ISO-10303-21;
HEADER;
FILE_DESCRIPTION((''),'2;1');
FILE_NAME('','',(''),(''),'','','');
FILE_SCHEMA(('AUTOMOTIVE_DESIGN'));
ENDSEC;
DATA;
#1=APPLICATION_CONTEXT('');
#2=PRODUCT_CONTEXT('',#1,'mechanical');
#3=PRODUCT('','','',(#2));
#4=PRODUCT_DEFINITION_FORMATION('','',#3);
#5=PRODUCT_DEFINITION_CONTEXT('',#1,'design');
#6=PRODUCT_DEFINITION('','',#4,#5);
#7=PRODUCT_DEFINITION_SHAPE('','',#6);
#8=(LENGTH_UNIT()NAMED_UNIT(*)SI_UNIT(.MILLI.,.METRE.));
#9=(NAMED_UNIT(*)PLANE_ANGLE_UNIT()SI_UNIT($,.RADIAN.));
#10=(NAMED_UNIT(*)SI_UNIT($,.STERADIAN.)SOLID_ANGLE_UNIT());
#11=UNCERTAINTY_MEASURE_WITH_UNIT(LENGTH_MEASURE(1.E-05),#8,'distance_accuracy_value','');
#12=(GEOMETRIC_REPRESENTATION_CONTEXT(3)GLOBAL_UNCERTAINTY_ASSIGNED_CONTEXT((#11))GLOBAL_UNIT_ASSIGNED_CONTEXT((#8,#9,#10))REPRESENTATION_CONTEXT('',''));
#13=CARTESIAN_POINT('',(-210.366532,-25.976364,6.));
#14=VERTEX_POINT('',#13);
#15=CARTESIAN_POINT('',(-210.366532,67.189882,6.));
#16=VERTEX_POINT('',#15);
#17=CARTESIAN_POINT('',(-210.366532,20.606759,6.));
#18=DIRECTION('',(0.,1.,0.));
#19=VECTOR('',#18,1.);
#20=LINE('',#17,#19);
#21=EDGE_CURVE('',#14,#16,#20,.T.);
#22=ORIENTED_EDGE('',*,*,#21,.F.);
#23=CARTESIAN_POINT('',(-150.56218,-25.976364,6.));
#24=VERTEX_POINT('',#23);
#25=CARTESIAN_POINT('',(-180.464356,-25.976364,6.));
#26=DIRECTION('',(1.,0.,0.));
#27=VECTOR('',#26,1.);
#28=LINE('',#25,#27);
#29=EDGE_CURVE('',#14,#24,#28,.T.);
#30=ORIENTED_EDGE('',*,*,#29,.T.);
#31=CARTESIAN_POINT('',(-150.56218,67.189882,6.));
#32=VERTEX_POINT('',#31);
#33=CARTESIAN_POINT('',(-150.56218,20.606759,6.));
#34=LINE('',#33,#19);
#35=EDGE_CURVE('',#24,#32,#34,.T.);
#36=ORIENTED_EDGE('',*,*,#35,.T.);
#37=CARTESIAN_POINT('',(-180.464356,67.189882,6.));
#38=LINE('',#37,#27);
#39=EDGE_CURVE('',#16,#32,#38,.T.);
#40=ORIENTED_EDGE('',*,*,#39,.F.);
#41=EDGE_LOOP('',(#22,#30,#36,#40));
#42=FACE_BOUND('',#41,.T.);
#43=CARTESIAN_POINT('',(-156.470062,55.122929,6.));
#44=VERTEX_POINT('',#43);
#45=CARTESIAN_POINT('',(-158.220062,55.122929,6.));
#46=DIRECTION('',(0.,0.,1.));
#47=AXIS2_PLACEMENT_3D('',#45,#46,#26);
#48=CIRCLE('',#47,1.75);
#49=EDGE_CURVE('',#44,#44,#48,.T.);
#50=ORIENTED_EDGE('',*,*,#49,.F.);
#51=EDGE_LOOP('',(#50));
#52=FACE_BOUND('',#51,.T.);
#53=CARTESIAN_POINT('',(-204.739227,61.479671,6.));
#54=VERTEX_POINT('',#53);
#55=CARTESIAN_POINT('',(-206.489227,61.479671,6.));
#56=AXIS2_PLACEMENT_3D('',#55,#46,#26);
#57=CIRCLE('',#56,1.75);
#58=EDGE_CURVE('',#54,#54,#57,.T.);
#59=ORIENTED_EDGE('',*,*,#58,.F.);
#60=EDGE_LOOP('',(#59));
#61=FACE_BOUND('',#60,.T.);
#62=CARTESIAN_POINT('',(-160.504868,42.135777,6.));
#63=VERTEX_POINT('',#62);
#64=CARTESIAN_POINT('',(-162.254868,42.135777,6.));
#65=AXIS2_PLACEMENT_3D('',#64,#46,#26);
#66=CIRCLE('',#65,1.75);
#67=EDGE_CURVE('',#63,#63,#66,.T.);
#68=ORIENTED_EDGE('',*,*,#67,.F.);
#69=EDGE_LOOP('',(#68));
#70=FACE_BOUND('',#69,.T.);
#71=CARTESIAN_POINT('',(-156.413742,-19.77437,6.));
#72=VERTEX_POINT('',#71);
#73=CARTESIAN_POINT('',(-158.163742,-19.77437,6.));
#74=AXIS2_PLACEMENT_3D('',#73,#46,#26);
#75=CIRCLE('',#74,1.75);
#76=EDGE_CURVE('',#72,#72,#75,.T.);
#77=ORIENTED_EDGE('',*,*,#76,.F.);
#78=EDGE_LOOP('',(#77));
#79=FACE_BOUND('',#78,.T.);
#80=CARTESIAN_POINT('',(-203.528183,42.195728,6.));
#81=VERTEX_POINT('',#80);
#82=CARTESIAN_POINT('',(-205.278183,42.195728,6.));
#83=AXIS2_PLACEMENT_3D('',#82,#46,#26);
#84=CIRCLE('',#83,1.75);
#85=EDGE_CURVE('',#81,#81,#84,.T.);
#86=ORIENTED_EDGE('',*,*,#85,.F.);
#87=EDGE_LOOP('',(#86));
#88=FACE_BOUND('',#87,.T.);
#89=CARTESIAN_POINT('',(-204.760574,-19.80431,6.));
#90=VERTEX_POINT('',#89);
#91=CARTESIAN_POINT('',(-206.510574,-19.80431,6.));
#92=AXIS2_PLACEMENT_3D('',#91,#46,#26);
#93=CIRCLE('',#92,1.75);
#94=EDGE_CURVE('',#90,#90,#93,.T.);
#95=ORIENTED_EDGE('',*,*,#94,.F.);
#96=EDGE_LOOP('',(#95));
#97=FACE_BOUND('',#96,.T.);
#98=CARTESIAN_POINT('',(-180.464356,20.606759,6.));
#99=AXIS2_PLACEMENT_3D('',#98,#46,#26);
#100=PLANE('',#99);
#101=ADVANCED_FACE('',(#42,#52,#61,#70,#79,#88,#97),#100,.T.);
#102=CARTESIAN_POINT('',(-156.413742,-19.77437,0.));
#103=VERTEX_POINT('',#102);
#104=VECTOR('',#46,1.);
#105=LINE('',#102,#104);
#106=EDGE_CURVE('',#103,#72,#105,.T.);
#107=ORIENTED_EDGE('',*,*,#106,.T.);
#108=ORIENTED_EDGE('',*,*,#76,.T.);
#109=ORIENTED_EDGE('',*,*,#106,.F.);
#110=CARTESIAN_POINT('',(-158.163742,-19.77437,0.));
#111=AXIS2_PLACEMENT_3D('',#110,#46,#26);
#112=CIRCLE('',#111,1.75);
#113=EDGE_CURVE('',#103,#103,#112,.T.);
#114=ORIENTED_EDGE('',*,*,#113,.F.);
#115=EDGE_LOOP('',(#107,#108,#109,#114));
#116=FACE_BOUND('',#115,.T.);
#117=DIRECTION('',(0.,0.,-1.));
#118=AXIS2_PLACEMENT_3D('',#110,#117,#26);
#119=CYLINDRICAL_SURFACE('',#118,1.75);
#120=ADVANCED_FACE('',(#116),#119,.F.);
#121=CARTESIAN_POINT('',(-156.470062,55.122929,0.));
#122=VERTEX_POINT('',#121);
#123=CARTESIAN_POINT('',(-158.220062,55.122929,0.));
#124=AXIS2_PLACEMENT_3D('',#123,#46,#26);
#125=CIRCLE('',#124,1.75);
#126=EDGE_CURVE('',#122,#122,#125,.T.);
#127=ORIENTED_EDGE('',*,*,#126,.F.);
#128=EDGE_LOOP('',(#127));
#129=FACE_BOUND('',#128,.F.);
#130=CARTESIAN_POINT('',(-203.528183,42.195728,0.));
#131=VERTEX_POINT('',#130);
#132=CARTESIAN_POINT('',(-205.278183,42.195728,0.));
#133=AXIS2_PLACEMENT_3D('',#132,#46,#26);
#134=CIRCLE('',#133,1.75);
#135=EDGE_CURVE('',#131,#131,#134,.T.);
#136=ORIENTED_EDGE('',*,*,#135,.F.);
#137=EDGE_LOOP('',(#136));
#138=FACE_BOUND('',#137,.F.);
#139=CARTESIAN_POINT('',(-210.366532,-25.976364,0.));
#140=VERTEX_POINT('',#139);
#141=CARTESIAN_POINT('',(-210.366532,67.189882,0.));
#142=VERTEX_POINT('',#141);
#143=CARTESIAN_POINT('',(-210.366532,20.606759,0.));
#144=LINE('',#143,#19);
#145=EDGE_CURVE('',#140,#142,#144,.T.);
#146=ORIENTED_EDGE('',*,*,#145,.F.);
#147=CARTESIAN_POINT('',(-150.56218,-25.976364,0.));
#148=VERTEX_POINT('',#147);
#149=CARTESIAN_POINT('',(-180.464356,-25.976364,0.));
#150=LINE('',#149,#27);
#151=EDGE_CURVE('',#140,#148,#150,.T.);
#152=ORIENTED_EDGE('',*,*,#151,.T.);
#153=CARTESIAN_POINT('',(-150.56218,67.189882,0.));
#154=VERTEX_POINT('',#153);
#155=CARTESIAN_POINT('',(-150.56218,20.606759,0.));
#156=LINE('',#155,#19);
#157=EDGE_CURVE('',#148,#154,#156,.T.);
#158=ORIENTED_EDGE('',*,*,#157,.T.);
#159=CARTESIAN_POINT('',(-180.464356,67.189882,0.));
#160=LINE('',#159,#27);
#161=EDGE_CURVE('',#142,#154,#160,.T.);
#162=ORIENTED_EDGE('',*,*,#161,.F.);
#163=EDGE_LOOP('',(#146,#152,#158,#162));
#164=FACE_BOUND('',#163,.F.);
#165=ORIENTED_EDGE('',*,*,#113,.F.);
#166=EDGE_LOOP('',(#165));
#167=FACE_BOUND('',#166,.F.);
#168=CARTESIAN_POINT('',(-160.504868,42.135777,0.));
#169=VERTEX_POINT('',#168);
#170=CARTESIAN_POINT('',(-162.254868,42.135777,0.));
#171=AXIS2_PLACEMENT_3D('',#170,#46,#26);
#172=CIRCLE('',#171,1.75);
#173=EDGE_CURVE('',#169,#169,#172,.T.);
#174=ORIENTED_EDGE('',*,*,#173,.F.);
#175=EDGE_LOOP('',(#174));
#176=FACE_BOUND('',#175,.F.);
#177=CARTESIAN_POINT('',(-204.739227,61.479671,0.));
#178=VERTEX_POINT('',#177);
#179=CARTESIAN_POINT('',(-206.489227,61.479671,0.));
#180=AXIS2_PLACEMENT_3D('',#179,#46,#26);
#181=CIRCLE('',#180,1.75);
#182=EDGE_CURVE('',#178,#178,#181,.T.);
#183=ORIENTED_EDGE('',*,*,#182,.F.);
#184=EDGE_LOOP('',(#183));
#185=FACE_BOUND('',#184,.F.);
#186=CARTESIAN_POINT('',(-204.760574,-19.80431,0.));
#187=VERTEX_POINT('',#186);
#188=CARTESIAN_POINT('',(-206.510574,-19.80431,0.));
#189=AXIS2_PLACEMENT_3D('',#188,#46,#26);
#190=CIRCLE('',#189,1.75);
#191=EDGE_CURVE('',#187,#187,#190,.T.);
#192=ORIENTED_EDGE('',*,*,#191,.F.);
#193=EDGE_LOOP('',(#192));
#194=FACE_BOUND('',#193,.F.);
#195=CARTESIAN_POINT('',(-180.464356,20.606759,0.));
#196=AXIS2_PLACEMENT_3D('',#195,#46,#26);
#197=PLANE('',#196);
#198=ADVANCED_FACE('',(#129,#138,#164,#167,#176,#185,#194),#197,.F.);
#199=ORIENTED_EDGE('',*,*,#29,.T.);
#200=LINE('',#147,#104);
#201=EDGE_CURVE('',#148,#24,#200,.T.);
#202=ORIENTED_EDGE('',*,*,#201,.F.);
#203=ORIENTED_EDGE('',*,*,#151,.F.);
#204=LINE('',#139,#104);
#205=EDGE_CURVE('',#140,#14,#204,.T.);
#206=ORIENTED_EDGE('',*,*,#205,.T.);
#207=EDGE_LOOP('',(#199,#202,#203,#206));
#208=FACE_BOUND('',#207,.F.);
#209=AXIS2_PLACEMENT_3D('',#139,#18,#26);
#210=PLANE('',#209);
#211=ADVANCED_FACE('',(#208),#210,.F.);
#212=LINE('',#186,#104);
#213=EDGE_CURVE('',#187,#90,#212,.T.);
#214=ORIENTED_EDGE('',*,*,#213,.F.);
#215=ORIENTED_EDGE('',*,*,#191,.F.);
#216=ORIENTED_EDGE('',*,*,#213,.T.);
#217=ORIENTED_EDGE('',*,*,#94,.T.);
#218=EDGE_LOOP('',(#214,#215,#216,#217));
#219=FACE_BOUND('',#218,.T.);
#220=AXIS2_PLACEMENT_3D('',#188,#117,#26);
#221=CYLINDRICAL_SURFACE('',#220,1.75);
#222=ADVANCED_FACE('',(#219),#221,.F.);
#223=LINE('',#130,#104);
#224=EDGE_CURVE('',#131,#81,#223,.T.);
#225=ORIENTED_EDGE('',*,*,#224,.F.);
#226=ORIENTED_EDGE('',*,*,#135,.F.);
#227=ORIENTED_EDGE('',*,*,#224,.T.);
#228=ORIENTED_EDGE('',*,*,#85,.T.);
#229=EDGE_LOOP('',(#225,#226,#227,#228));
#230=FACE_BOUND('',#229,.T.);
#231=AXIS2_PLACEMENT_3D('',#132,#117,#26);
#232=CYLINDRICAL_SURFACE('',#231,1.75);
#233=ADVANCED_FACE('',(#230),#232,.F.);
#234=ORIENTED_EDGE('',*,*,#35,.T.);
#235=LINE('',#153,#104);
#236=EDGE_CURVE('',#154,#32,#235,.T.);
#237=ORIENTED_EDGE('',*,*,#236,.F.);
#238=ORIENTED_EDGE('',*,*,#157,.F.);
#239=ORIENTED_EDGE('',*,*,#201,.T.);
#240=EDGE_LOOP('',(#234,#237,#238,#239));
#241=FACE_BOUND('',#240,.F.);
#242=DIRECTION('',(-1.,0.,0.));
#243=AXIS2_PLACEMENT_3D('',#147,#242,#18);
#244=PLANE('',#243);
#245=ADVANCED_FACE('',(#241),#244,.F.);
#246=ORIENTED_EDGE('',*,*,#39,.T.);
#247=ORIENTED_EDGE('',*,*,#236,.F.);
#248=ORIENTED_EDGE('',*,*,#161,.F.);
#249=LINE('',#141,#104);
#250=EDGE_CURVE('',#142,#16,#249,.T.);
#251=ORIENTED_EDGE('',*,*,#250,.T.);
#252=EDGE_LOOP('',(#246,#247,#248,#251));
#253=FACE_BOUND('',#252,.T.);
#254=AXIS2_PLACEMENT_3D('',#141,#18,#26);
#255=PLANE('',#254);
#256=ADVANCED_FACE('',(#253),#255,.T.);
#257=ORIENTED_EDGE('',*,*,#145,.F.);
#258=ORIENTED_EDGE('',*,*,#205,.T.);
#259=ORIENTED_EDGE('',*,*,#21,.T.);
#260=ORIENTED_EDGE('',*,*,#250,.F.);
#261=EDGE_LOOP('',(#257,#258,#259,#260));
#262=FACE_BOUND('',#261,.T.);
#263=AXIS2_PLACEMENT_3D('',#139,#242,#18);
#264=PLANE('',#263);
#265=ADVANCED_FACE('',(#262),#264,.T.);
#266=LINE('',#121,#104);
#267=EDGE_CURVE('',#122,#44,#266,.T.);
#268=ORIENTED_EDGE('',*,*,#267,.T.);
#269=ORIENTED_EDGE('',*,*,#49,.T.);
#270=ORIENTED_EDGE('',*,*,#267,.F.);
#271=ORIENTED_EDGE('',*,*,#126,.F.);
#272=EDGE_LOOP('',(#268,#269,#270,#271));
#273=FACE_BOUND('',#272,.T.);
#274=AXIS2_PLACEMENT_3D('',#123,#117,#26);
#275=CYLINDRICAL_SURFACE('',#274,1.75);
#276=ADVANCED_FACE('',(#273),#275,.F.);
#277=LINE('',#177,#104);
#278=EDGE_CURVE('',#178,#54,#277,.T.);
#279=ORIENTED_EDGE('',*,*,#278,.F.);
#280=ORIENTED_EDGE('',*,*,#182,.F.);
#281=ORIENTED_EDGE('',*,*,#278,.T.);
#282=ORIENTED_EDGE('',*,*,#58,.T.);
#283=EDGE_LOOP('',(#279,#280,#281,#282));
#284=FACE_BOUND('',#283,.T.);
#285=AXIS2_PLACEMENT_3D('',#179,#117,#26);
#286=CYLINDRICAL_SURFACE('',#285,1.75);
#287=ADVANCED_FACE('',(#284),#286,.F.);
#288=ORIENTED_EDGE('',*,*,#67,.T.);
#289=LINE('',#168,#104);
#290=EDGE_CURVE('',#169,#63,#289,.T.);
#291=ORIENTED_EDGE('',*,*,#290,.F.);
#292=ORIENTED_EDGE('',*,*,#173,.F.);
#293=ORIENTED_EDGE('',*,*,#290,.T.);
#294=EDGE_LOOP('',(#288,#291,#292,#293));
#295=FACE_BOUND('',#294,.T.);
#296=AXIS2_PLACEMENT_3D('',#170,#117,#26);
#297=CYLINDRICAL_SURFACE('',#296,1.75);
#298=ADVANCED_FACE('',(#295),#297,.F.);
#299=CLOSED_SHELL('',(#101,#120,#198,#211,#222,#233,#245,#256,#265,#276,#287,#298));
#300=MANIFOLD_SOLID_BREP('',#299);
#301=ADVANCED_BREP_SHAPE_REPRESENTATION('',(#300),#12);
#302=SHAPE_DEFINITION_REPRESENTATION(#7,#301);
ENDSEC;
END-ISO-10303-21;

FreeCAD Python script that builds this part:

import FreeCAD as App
import Part
import Sketcher

V = App.Vector


def add_polygon(sketch, points):
    """Adds a closed chain of lines whose ends are joined by coincident constraints."""
    first, n = sketch.GeometryCount, len(points)
    for a, b in zip(points, points[1:] + points[:1]):
        sketch.addGeometry(Part.LineSegment(App.Vector(*a, 0), App.Vector(*b, 0)), False)
    for i in range(n):
        sketch.addConstraint(Sketcher.Constraint("Coincident", first + i, 2, first + (i + 1) % n, 1))

doc = App.newDocument("Part")
body = doc.addObject("PartDesign::Body", "Body")

# Sketch on XY plane
sketch1 = body.newObject("Sketcher::SketchObject", "Sketch")
sketch1.AttachmentSupport = (doc.getObject("XY_Plane"), [""])
sketch1.MapMode = "FlatFace"
add_polygon(sketch1, [(-210.4, 67.2), (-210.4, -26), (-150.6, -26), (-150.6, 67.2)])  # lines 0-3
sketch1.addGeometry(Part.Circle(V(-206.5, -19.8, 0), V(0, 0, 1), 1.8), False)  # 4
sketch1.addGeometry(Part.Circle(V(-158.2, -19.8, 0), V(0, 0, 1), 1.8), False)  # 5
sketch1.addGeometry(Part.Circle(V(-205.3, 42.2, 0), V(0, 0, 1), 1.8), False)  # 6
sketch1.addGeometry(Part.Circle(V(-206.5, 61.5, 0), V(0, 0, 1), 1.8), False)  # 7
sketch1.addGeometry(Part.Circle(V(-162.3, 42.1, 0), V(0, 0, 1), 1.8), False)  # 8
sketch1.addGeometry(Part.Circle(V(-158.2, 55.1, 0), V(0, 0, 1), 1.8), False)  # 9
sketch1.addConstraint([
    Sketcher.Constraint("Vertical", 0),
    Sketcher.Constraint("Horizontal", 1),
    Sketcher.Constraint("Vertical", 2),
    Sketcher.Constraint("Horizontal", 3),
    Sketcher.Constraint("Equal", 4, 5),
    Sketcher.Constraint("Equal", 5, 6),
    Sketcher.Constraint("Equal", 6, 7),
    Sketcher.Constraint("Equal", 7, 8),
    Sketcher.Constraint("Equal", 8, 9),
    Sketcher.Constraint("Diameter", 4, 3.5),
    Sketcher.Constraint("DistanceX", 1, 1, 1, 2, 59.804352),
    Sketcher.Constraint("DistanceY", 5, 3, 6, 3, 61.970098),
    Sketcher.Constraint("DistanceY", 6, 3, 9, 3, 12.927201),
    Sketcher.Constraint("DistanceY", 0, 2, 0, 1, 93.166247),
    Sketcher.Constraint("DistanceY", 4, 3, -1, 1, 19.80431),
    Sketcher.Constraint("DistanceY", 5, 3, -1, 1, 19.77437),
    Sketcher.Constraint("DistanceY", -1, 1, 7, 3, 61.479671),
    Sketcher.Constraint("DistanceX", 0, 2, -1, 1, 210.366532),
    Sketcher.Constraint("DistanceX", 4, 3, 5, 3, 48.346832),
    Sketcher.Constraint("DistanceX", 4, 3, 6, 3, 1.232391),
    Sketcher.Constraint("DistanceY", 8, 3, 6, 3, 0.059951),
    Sketcher.Constraint("DistanceX", 7, 3, 8, 3, 44.234359),
    Sketcher.Constraint("DistanceX", 6, 3, 9, 3, 47.058121),
    Sketcher.Constraint("DistanceX", 0, 2, 4, 3, 3.855958),
    Sketcher.Constraint("DistanceY", 0, 2, 8, 3, 68.112141),
    Sketcher.Constraint("DistanceX", 7, 3, -1, 1, 206.489227),
])
pad1 = body.newObject("PartDesign::Pad", "Pad")
pad1.Profile = sketch1
pad1.Length = 6

doc.recompute()
